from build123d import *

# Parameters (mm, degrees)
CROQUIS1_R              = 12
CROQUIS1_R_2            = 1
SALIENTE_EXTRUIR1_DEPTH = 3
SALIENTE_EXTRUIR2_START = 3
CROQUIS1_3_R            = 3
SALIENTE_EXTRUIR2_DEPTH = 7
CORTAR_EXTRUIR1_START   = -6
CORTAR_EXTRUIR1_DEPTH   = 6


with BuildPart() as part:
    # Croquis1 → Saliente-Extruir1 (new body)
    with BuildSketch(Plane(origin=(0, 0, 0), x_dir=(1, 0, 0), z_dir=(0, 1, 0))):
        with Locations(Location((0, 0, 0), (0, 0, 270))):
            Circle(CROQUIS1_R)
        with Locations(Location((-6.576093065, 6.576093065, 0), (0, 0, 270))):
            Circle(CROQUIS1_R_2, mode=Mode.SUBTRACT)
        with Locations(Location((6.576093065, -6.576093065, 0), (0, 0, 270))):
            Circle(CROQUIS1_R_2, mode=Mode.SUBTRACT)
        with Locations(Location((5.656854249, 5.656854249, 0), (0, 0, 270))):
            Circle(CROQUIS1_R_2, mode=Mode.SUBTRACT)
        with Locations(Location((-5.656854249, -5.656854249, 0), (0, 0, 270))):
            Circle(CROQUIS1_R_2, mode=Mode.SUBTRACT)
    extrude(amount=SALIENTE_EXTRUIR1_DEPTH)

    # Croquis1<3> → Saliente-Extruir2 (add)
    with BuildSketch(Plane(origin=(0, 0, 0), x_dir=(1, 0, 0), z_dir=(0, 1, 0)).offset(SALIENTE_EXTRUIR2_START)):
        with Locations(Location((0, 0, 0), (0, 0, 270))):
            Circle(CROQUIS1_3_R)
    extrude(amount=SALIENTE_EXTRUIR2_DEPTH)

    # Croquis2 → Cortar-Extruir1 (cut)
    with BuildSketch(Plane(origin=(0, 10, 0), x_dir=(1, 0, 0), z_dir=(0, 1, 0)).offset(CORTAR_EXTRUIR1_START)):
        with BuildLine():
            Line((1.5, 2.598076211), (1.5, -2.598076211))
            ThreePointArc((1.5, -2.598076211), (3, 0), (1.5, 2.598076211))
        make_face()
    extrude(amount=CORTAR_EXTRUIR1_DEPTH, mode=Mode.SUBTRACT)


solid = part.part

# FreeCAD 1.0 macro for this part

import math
import FreeCAD as App
import Part
import Sketcher
Q = App.Units.Quantity

doc = App.newDocument("Part")
body = doc.addObject("PartDesign::Body", "Body")

sketch1 = body.newObject("Sketcher::SketchObject", "Sketch")
sketch1.AttachmentSupport = (doc.getObject("XZ_Plane"), [""])
sketch1.MapMode = "FlatFace"
sketch1.addGeometry([
    Part.Circle(App.Vector(0, 0, 0), App.Vector(0, 0, 1), 12),
    Part.Circle(App.Vector(-6.6, -6.6, 0), App.Vector(0, 0, 1), 1),
    Part.Circle(App.Vector(-5.7, 5.7, 0), App.Vector(0, 0, 1), 1),
    Part.Circle(App.Vector(5.7, -5.7, 0), App.Vector(0, 0, 1), 1),
    Part.Circle(App.Vector(6.6, 6.6, 0), App.Vector(0, 0, 1), 1),
], False)
sketch1.addConstraint([
    Sketcher.Constraint("Coincident", 0, 3, -1, 1),
    Sketcher.Constraint("Equal", 1, 2),
    Sketcher.Constraint("Equal", 2, 3),
    Sketcher.Constraint("Equal", 3, 4),
    Sketcher.Constraint("Symmetric", 2, 3, 3, 3, -1, 1),
    Sketcher.Constraint("Symmetric", 1, 3, 4, 3, -1, 1),
    Sketcher.Constraint("Diameter", 0, Q("24 mm")),
    Sketcher.Constraint("Diameter", 1, Q("2 mm")),
    Sketcher.Constraint("DistanceX", 1, 3, 2, 3, Q("0.919239 mm")),
    Sketcher.Constraint("DistanceY", 1, 3, 3, 3, Q("0.919239 mm")),
    Sketcher.Constraint("DistanceX", 2, 3, 3, 3, Q("11.313708 mm")),
    Sketcher.Constraint("DistanceY", 3, 3, 2, 3, Q("11.313708 mm")),
])
pad1 = body.newObject("PartDesign::Pad", "Pad")
pad1.Profile = sketch1
pad1.Length = 3
pad1.Reversed = True

sketch2 = body.newObject("Sketcher::SketchObject", "Sketch001")
sketch2.AttachmentSupport = (doc.getObject("XZ_Plane"), [""])
sketch2.MapMode = "FlatFace"
sketch2.AttachmentOffset = App.Placement(App.Vector(0, 0, -3), App.Rotation())
sketch2.addGeometry(Part.Circle(App.Vector(0, 0, 0), App.Vector(0, 0, 1), 3), False)
sketch2.addConstraint([
    Sketcher.Constraint("Coincident", 0, 3, -1, 1),
    Sketcher.Constraint("Diameter", 0, Q("6 mm")),
])
pad2 = body.newObject("PartDesign::Pad", "Pad001")
pad2.Profile = sketch2
pad2.Length = 7
pad2.Reversed = True

sketch3 = body.newObject("Sketcher::SketchObject", "Sketch002")
sketch3.AttachmentSupport = (doc.getObject("XZ_Plane"), [""])
sketch3.MapMode = "FlatFace"
sketch3.AttachmentOffset = App.Placement(App.Vector(0, 0, -4), App.Rotation())
sketch3.addGeometry([
    Part.LineSegment(App.Vector(1.5, -2.6, 0), App.Vector(1.5, 2.6, 0)),
    Part.ArcOfCircle(Part.Circle(App.Vector(0, 0, 0), App.Vector(0, 0, 1), 3), math.radians(-60), math.radians(60)),
], False)
sketch3.addConstraint([
    Sketcher.Constraint("Coincident", 0, 1, 1, 1),
    Sketcher.Constraint("Coincident", 1, 2, 0, 2),
    Sketcher.Constraint("Vertical", 0),
    Sketcher.Constraint("Coincident", 1, 3, -1, 1),
    Sketcher.Constraint("Radius", 1, Q("3 mm")),
    Sketcher.Constraint("DistanceX", -1, 1, 0, 1, Q("1.5 mm")),
])
pocket1 = body.newObject("PartDesign::Pocket", "Pocket")
pocket1.Profile = sketch3
pocket1.Length = 6

doc.recompute()
